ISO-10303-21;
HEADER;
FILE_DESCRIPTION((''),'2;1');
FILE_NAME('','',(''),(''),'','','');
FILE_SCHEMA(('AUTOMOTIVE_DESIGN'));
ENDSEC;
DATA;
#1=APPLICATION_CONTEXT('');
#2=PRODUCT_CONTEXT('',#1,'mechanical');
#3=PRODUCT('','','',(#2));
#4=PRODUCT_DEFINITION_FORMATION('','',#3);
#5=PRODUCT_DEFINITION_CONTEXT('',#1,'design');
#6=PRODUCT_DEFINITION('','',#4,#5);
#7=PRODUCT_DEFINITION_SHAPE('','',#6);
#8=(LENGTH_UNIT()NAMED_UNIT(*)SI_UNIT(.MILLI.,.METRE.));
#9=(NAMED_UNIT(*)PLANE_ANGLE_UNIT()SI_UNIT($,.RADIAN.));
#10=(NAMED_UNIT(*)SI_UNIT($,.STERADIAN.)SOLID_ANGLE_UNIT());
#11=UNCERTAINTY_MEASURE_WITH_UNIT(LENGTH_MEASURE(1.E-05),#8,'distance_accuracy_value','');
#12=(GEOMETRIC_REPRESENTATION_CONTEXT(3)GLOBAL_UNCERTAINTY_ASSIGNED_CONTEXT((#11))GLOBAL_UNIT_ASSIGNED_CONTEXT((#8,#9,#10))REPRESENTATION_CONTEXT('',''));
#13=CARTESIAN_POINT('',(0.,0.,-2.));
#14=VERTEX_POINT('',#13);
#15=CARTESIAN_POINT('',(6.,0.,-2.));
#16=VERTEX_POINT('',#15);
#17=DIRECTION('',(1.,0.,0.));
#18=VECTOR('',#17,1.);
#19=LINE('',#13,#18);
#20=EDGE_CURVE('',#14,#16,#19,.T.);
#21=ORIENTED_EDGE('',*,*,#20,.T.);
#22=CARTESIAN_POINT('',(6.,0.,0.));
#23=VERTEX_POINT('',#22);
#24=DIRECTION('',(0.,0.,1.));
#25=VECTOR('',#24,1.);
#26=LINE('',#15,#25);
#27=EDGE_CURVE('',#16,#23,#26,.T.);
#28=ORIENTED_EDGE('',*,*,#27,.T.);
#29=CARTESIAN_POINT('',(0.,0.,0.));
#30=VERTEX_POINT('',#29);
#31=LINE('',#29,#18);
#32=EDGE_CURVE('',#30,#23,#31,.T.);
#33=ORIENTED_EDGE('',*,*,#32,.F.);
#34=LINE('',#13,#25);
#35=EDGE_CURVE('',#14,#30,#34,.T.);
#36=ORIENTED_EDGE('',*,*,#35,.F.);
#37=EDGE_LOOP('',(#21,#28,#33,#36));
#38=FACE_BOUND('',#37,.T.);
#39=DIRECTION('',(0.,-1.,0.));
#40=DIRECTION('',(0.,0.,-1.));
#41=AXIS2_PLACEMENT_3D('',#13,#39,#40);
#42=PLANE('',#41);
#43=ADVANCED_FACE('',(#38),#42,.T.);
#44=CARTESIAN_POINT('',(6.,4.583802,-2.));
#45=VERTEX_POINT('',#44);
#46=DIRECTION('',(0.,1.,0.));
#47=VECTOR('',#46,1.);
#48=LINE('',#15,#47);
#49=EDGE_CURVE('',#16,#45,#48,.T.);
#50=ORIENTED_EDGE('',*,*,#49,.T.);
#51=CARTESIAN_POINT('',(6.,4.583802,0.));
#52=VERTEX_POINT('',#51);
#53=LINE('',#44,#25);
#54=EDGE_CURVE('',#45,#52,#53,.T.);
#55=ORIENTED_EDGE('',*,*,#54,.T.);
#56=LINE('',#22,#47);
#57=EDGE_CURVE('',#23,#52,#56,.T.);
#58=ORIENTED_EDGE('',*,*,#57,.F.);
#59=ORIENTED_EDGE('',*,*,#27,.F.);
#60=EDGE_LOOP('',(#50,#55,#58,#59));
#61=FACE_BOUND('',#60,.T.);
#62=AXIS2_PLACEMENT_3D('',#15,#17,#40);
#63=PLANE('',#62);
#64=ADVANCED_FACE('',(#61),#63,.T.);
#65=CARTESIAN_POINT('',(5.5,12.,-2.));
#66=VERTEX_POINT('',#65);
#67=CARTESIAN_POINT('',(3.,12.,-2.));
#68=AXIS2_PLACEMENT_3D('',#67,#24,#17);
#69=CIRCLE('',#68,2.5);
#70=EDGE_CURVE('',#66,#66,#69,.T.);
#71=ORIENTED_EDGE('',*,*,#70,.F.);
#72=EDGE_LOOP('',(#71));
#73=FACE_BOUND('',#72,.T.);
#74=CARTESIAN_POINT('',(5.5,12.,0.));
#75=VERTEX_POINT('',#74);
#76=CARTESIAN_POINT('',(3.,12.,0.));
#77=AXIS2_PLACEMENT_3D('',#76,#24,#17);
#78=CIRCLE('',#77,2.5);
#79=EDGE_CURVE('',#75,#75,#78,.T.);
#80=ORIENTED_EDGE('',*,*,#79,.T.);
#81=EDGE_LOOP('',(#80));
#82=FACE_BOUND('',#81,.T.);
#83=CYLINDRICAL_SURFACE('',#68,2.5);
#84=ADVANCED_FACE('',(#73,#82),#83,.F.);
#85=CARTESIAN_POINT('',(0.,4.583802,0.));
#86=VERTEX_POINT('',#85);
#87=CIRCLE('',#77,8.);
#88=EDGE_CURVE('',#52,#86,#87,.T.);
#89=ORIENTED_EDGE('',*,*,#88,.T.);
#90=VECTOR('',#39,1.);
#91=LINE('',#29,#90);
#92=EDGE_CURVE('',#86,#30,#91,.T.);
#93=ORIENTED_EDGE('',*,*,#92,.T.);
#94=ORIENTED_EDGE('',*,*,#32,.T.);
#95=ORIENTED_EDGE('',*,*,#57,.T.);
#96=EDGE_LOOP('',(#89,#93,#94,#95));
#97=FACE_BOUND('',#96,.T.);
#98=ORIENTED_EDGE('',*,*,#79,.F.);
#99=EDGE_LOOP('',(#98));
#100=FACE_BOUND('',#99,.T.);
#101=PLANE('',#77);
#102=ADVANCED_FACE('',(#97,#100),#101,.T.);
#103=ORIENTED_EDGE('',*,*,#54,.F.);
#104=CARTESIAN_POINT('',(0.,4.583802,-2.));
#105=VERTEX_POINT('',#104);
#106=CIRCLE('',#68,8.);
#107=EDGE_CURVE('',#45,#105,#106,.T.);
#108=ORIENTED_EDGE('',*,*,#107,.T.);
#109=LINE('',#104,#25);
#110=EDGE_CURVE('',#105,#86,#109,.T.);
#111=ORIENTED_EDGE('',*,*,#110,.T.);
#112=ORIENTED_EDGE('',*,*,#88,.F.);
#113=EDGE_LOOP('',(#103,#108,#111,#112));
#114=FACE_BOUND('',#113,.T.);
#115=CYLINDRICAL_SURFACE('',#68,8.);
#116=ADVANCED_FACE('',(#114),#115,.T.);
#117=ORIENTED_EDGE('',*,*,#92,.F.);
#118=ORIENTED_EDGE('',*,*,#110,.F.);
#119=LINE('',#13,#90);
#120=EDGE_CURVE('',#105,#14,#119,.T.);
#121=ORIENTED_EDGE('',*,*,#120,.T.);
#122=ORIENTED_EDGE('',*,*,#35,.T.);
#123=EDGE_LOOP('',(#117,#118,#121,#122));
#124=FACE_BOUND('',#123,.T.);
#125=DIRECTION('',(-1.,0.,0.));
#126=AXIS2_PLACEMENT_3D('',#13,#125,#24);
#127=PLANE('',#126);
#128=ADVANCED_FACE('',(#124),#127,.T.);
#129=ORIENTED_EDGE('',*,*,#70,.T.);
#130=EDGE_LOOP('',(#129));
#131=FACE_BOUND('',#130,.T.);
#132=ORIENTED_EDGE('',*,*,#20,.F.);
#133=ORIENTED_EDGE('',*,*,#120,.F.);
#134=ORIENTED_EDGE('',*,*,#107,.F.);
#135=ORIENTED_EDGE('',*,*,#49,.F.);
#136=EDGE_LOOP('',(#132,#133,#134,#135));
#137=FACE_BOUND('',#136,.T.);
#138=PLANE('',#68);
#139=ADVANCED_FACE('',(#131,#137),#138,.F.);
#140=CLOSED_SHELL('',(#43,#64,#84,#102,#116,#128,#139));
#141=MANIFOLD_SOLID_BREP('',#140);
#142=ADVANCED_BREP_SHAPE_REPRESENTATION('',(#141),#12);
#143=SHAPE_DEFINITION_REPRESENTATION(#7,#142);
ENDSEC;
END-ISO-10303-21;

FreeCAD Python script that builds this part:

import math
import FreeCAD as App
import Part
import Sketcher
Q = App.Units.Quantity

doc = App.newDocument("Part")
body = doc.addObject("PartDesign::Body", "Body")

# Sketch on XY plane
sketch1 = body.newObject("Sketcher::SketchObject", "Sketch")
sketch1.AttachmentSupport = (doc.getObject("XY_Plane"), [""])
sketch1.MapMode = "FlatFace"
sketch1.addGeometry([
    Part.LineSegment(App.Vector(0, 0, 0), App.Vector(6, 0, 0)),
    Part.LineSegment(App.Vector(6, 0, 0), App.Vector(6, 4.6, 0)),
    Part.ArcOfCircle(Part.Circle(App.Vector(3, 12, 0), App.Vector(0, 0, 1), 8), math.radians(-68), math.radians(248)),
    Part.LineSegment(App.Vector(0, 4.6, 0), App.Vector(0, 0, 0)),
], False)
sketch1.addConstraint([
    Sketcher.Constraint("Coincident", 0, 2, 1, 1),
    Sketcher.Constraint("Coincident", 1, 2, 2, 1),
    Sketcher.Constraint("Coincident", 2, 2, 3, 1),
    Sketcher.Constraint("Coincident", 3, 2, 0, 1),
    Sketcher.Constraint("Horizontal", 0),
    Sketcher.Constraint("Vertical", 1),
    Sketcher.Constraint("Vertical", 3),
    Sketcher.Constraint("Coincident", 3, 2, -1, 1),
    Sketcher.Constraint("Horizontal", 1, 2, 2, 2),
    Sketcher.Constraint("Radius", 2, Q("8 mm")),
    Sketcher.Constraint("DistanceX", 0, 1, 0, 2, Q("6 mm")),
    Sketcher.Constraint("DistanceY", -1, 1, 2, 3, Q("12 mm")),
])
pad1 = body.newObject("PartDesign::Pad", "Pad")
pad1.Profile = sketch1
pad1.Length = 2
pad1.Reversed = True

# Sketch on XY plane
sketch2 = body.newObject("Sketcher::SketchObject", "Sketch001")
sketch2.AttachmentSupport = (doc.getObject("XY_Plane"), [""])
sketch2.MapMode = "FlatFace"
sketch2.addGeometry(Part.Circle(App.Vector(3, 12, 0), App.Vector(0, 0, 1), 2.5), False)
sketch2.addConstraint([
    Sketcher.Constraint("Diameter", 0, Q("5 mm")),
    Sketcher.Constraint("DistanceX", -1, 1, 0, 3, Q("3 mm")),
    Sketcher.Constraint("DistanceY", -1, 1, 0, 3, Q("12 mm")),
])
pocket1 = body.newObject("PartDesign::Pocket", "Pocket")
pocket1.Profile = sketch2
pocket1.Length = 2

doc.recompute()
